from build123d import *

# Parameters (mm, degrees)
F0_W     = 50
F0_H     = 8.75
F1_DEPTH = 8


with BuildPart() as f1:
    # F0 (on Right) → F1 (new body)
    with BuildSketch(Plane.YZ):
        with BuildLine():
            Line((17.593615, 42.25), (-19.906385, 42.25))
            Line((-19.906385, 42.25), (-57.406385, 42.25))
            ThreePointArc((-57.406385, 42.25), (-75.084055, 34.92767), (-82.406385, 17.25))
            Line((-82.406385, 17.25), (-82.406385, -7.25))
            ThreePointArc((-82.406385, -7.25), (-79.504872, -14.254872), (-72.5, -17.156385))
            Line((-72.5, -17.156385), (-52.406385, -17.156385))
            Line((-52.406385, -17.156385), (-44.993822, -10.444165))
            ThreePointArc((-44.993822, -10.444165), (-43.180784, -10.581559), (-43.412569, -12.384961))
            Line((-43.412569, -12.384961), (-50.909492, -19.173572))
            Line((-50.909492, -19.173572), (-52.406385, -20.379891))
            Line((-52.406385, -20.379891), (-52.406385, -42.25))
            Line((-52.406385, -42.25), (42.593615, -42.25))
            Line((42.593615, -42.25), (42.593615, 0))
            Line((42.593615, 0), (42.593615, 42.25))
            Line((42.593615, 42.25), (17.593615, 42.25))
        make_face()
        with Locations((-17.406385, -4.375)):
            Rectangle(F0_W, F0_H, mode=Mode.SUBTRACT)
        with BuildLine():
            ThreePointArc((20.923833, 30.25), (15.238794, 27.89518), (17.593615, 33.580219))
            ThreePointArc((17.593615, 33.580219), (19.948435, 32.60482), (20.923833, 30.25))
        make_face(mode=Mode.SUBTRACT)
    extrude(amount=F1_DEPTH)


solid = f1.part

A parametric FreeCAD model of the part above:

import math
import FreeCAD as App
import Part
import Sketcher
from FreeCAD import Vector
Q = App.Units.Quantity


def add_polygon(sketch, points):
    """Adds a closed chain of lines whose ends are joined by coincident constraints."""
    first, n = sketch.GeometryCount, len(points)
    for a, b in zip(points, points[1:] + points[:1]):
        sketch.addGeometry(Part.LineSegment(App.Vector(*a, 0), App.Vector(*b, 0)), False)
    for i in range(n):
        sketch.addConstraint(Sketcher.Constraint("Coincident", first + i, 2, first + (i + 1) % n, 1))

doc = App.newDocument("Part")
body = doc.addObject("PartDesign::Body", "Body")

sketch1 = body.newObject("Sketcher::SketchObject", "Sketch")
sketch1.AttachmentSupport = (doc.getObject("YZ_Plane"), [""])
sketch1.MapMode = "FlatFace"
sketch1.addGeometry(Part.ArcOfCircle(Part.Circle(Vector(-57.4, 17.3, 0), Vector(0, 0, 1), 25), math.radians(90), math.radians(180)), False)
sketch1.addGeometry(Part.LineSegment(Vector(-82.4, 17.2, 0), Vector(-82.4, -7.2, 0)), False)
sketch1.addGeometry(Part.ArcOfCircle(Part.Circle(Vector(-72.5, -7.2, 0), Vector(0, 0, 1), 9.9), math.radians(-180), math.radians(-90)), False)
sketch1.addGeometry(Part.LineSegment(Vector(-72.5, -17.2, 0), Vector(-52.4, -17.2, 0)), False)
sketch1.addGeometry(Part.LineSegment(Vector(-52.4, -17.2, 0), Vector(-45, -10.4, 0)), False)
sketch1.addGeometry(Part.ArcOfCircle(Part.Circle(Vector(-44.2, -11.4, 0), Vector(0, 0, 1), 1.3), math.radians(-54), math.radians(132)), False)
sketch1.addGeometry(Part.LineSegment(Vector(-43.4, -12.4, 0), Vector(-50.9, -19.2, 0)), False)
sketch1.addGeometry(Part.LineSegment(Vector(-50.9, -19.2, 0), Vector(-52.4, -20.4, 0)), False)
sketch1.addGeometry(Part.LineSegment(Vector(-52.4, -20.4, 0), Vector(-52.4, -42.2, 0)), False)
sketch1.addGeometry(Part.LineSegment(Vector(-52.4, -42.2, 0), Vector(42.6, -42.2, 0)), False)
sketch1.addGeometry(Part.LineSegment(Vector(42.6, -42.2, 0), Vector(42.6, 42.2, 0)), False)
sketch1.addGeometry(Part.LineSegment(Vector(42.6, 42.2, 0), Vector(-57.4, 42.2, 0)), False)
add_polygon(sketch1, [(7.6, -8.8), (-42.4, -8.8), (-42.4, 0), (7.6, 0)])
sketch1.addGeometry(Part.ArcOfCircle(Part.Circle(Vector(17.6, 30.3, 0), Vector(0, 0, 1), 3.3), math.radians(0), math.radians(90)), False)
sketch1.addGeometry(Part.ArcOfCircle(Part.Circle(Vector(17.6, 30.3, 0), Vector(0, 0, 1), 3.3), math.radians(90), math.radians(360)), False)
sketch1.addConstraint([
    Sketcher.Constraint("Tangent", 0, 2, 1, 1),
    Sketcher.Constraint("Tangent", 1, 2, 2, 1),
    Sketcher.Constraint("Tangent", 2, 2, 3, 1),
    Sketcher.Constraint("Coincident", 3, 2, 4, 1),
    Sketcher.Constraint("Tangent", 4, 2, 5, 2),
    Sketcher.Constraint("Coincident", 5, 1, 6, 1),
    Sketcher.Constraint("Coincident", 6, 2, 7, 1),
    Sketcher.Constraint("Coincident", 7, 2, 8, 1),
    Sketcher.Constraint("Coincident", 8, 2, 9, 1),
    Sketcher.Constraint("Coincident", 9, 2, 10, 1),
    Sketcher.Constraint("Coincident", 10, 2, 11, 1),
    Sketcher.Constraint("Tangent", 11, 2, 0, 1),
    Sketcher.Constraint("Tangent", 16, 1, 17, 2),
    Sketcher.Constraint("Coincident", 17, 1, 16, 2),
    Sketcher.Constraint("Vertical", 1),
    Sketcher.Constraint("Horizontal", 3),
    Sketcher.Constraint("Vertical", 8),
    Sketcher.Constraint("Horizontal", 9),
    Sketcher.Constraint("Vertical", 10),
    Sketcher.Constraint("Horizontal", 11),
    Sketcher.Constraint("Horizontal", 12),
    Sketcher.Constraint("Vertical", 13),
    Sketcher.Constraint("Horizontal", 14),
    Sketcher.Constraint("Vertical", 15),
    Sketcher.Constraint("PointOnObject", 13, 2, -1),
    Sketcher.Constraint("Parallel", 4, 6),
    Sketcher.Constraint("Horizontal", 17, 3, 16, 1),
    Sketcher.Constraint("Vertical", 3, 2, 7, 2),
    Sketcher.Constraint("Vertical", 16, 3, 17, 1),
    Sketcher.Constraint("Radius", 0, Q("24.999998 mm")),
    Sketcher.Constraint("DistanceX", 9, 1, 9, 2, Q("95 mm")),
    Sketcher.Constraint("DistanceX", 11, 2, 11, 1, Q("100 mm")),
    Sketcher.Constraint("DistanceX", 12, 2, 12, 1, Q("50 mm")),
    Sketcher.Constraint("Distance", 4, Q("9.999999 mm")),
    Sketcher.Constraint("DistanceY", 1, 2, 1, 1, Q("24.5 mm")),
    Sketcher.Constraint("DistanceY", 10, 1, 10, 2, Q("84.5 mm")),
    Sketcher.Constraint("DistanceX", 0, 3, 16, 3, Q("75.000001 mm")),
    Sketcher.Constraint("DistanceY", 0, 3, 16, 3, Q("12.999999 mm")),
    Sketcher.Constraint("DistanceX", 3, 2, 12, 2, Q("10 mm")),
    Sketcher.Constraint("DistanceY", 15, 2, 16, 3, Q("39 mm")),
    Sketcher.Constraint("DistanceY", 13, 1, 13, 2, Q("8.75 mm")),
    Sketcher.Constraint("DistanceX", 2, 3, -1, 1, Q("72.5 mm")),
    Sketcher.Constraint("Radius", 5, Q("1.25341 mm")),
    Sketcher.Constraint("Radius", 16, Q("3.330219 mm")),
    Sketcher.Constraint("Radius", 2, Q("9.906385 mm")),
    Sketcher.Constraint("DistanceY", 8, 2, 8, 1, Q("21.870109 mm")),
    Sketcher.Constraint("DistanceY", 5, 3, 4, 2, Q("0.929098 mm")),
    Sketcher.Constraint("Distance", 7, Q("1.922471 mm")),
    Sketcher.Constraint("DistanceX", 5, 1, -1, 1, Q("43.412569 mm")),
])
pad1 = body.newObject("PartDesign::Pad", "Pad")
pad1.Profile = sketch1
pad1.Length = 8

doc.recompute()
